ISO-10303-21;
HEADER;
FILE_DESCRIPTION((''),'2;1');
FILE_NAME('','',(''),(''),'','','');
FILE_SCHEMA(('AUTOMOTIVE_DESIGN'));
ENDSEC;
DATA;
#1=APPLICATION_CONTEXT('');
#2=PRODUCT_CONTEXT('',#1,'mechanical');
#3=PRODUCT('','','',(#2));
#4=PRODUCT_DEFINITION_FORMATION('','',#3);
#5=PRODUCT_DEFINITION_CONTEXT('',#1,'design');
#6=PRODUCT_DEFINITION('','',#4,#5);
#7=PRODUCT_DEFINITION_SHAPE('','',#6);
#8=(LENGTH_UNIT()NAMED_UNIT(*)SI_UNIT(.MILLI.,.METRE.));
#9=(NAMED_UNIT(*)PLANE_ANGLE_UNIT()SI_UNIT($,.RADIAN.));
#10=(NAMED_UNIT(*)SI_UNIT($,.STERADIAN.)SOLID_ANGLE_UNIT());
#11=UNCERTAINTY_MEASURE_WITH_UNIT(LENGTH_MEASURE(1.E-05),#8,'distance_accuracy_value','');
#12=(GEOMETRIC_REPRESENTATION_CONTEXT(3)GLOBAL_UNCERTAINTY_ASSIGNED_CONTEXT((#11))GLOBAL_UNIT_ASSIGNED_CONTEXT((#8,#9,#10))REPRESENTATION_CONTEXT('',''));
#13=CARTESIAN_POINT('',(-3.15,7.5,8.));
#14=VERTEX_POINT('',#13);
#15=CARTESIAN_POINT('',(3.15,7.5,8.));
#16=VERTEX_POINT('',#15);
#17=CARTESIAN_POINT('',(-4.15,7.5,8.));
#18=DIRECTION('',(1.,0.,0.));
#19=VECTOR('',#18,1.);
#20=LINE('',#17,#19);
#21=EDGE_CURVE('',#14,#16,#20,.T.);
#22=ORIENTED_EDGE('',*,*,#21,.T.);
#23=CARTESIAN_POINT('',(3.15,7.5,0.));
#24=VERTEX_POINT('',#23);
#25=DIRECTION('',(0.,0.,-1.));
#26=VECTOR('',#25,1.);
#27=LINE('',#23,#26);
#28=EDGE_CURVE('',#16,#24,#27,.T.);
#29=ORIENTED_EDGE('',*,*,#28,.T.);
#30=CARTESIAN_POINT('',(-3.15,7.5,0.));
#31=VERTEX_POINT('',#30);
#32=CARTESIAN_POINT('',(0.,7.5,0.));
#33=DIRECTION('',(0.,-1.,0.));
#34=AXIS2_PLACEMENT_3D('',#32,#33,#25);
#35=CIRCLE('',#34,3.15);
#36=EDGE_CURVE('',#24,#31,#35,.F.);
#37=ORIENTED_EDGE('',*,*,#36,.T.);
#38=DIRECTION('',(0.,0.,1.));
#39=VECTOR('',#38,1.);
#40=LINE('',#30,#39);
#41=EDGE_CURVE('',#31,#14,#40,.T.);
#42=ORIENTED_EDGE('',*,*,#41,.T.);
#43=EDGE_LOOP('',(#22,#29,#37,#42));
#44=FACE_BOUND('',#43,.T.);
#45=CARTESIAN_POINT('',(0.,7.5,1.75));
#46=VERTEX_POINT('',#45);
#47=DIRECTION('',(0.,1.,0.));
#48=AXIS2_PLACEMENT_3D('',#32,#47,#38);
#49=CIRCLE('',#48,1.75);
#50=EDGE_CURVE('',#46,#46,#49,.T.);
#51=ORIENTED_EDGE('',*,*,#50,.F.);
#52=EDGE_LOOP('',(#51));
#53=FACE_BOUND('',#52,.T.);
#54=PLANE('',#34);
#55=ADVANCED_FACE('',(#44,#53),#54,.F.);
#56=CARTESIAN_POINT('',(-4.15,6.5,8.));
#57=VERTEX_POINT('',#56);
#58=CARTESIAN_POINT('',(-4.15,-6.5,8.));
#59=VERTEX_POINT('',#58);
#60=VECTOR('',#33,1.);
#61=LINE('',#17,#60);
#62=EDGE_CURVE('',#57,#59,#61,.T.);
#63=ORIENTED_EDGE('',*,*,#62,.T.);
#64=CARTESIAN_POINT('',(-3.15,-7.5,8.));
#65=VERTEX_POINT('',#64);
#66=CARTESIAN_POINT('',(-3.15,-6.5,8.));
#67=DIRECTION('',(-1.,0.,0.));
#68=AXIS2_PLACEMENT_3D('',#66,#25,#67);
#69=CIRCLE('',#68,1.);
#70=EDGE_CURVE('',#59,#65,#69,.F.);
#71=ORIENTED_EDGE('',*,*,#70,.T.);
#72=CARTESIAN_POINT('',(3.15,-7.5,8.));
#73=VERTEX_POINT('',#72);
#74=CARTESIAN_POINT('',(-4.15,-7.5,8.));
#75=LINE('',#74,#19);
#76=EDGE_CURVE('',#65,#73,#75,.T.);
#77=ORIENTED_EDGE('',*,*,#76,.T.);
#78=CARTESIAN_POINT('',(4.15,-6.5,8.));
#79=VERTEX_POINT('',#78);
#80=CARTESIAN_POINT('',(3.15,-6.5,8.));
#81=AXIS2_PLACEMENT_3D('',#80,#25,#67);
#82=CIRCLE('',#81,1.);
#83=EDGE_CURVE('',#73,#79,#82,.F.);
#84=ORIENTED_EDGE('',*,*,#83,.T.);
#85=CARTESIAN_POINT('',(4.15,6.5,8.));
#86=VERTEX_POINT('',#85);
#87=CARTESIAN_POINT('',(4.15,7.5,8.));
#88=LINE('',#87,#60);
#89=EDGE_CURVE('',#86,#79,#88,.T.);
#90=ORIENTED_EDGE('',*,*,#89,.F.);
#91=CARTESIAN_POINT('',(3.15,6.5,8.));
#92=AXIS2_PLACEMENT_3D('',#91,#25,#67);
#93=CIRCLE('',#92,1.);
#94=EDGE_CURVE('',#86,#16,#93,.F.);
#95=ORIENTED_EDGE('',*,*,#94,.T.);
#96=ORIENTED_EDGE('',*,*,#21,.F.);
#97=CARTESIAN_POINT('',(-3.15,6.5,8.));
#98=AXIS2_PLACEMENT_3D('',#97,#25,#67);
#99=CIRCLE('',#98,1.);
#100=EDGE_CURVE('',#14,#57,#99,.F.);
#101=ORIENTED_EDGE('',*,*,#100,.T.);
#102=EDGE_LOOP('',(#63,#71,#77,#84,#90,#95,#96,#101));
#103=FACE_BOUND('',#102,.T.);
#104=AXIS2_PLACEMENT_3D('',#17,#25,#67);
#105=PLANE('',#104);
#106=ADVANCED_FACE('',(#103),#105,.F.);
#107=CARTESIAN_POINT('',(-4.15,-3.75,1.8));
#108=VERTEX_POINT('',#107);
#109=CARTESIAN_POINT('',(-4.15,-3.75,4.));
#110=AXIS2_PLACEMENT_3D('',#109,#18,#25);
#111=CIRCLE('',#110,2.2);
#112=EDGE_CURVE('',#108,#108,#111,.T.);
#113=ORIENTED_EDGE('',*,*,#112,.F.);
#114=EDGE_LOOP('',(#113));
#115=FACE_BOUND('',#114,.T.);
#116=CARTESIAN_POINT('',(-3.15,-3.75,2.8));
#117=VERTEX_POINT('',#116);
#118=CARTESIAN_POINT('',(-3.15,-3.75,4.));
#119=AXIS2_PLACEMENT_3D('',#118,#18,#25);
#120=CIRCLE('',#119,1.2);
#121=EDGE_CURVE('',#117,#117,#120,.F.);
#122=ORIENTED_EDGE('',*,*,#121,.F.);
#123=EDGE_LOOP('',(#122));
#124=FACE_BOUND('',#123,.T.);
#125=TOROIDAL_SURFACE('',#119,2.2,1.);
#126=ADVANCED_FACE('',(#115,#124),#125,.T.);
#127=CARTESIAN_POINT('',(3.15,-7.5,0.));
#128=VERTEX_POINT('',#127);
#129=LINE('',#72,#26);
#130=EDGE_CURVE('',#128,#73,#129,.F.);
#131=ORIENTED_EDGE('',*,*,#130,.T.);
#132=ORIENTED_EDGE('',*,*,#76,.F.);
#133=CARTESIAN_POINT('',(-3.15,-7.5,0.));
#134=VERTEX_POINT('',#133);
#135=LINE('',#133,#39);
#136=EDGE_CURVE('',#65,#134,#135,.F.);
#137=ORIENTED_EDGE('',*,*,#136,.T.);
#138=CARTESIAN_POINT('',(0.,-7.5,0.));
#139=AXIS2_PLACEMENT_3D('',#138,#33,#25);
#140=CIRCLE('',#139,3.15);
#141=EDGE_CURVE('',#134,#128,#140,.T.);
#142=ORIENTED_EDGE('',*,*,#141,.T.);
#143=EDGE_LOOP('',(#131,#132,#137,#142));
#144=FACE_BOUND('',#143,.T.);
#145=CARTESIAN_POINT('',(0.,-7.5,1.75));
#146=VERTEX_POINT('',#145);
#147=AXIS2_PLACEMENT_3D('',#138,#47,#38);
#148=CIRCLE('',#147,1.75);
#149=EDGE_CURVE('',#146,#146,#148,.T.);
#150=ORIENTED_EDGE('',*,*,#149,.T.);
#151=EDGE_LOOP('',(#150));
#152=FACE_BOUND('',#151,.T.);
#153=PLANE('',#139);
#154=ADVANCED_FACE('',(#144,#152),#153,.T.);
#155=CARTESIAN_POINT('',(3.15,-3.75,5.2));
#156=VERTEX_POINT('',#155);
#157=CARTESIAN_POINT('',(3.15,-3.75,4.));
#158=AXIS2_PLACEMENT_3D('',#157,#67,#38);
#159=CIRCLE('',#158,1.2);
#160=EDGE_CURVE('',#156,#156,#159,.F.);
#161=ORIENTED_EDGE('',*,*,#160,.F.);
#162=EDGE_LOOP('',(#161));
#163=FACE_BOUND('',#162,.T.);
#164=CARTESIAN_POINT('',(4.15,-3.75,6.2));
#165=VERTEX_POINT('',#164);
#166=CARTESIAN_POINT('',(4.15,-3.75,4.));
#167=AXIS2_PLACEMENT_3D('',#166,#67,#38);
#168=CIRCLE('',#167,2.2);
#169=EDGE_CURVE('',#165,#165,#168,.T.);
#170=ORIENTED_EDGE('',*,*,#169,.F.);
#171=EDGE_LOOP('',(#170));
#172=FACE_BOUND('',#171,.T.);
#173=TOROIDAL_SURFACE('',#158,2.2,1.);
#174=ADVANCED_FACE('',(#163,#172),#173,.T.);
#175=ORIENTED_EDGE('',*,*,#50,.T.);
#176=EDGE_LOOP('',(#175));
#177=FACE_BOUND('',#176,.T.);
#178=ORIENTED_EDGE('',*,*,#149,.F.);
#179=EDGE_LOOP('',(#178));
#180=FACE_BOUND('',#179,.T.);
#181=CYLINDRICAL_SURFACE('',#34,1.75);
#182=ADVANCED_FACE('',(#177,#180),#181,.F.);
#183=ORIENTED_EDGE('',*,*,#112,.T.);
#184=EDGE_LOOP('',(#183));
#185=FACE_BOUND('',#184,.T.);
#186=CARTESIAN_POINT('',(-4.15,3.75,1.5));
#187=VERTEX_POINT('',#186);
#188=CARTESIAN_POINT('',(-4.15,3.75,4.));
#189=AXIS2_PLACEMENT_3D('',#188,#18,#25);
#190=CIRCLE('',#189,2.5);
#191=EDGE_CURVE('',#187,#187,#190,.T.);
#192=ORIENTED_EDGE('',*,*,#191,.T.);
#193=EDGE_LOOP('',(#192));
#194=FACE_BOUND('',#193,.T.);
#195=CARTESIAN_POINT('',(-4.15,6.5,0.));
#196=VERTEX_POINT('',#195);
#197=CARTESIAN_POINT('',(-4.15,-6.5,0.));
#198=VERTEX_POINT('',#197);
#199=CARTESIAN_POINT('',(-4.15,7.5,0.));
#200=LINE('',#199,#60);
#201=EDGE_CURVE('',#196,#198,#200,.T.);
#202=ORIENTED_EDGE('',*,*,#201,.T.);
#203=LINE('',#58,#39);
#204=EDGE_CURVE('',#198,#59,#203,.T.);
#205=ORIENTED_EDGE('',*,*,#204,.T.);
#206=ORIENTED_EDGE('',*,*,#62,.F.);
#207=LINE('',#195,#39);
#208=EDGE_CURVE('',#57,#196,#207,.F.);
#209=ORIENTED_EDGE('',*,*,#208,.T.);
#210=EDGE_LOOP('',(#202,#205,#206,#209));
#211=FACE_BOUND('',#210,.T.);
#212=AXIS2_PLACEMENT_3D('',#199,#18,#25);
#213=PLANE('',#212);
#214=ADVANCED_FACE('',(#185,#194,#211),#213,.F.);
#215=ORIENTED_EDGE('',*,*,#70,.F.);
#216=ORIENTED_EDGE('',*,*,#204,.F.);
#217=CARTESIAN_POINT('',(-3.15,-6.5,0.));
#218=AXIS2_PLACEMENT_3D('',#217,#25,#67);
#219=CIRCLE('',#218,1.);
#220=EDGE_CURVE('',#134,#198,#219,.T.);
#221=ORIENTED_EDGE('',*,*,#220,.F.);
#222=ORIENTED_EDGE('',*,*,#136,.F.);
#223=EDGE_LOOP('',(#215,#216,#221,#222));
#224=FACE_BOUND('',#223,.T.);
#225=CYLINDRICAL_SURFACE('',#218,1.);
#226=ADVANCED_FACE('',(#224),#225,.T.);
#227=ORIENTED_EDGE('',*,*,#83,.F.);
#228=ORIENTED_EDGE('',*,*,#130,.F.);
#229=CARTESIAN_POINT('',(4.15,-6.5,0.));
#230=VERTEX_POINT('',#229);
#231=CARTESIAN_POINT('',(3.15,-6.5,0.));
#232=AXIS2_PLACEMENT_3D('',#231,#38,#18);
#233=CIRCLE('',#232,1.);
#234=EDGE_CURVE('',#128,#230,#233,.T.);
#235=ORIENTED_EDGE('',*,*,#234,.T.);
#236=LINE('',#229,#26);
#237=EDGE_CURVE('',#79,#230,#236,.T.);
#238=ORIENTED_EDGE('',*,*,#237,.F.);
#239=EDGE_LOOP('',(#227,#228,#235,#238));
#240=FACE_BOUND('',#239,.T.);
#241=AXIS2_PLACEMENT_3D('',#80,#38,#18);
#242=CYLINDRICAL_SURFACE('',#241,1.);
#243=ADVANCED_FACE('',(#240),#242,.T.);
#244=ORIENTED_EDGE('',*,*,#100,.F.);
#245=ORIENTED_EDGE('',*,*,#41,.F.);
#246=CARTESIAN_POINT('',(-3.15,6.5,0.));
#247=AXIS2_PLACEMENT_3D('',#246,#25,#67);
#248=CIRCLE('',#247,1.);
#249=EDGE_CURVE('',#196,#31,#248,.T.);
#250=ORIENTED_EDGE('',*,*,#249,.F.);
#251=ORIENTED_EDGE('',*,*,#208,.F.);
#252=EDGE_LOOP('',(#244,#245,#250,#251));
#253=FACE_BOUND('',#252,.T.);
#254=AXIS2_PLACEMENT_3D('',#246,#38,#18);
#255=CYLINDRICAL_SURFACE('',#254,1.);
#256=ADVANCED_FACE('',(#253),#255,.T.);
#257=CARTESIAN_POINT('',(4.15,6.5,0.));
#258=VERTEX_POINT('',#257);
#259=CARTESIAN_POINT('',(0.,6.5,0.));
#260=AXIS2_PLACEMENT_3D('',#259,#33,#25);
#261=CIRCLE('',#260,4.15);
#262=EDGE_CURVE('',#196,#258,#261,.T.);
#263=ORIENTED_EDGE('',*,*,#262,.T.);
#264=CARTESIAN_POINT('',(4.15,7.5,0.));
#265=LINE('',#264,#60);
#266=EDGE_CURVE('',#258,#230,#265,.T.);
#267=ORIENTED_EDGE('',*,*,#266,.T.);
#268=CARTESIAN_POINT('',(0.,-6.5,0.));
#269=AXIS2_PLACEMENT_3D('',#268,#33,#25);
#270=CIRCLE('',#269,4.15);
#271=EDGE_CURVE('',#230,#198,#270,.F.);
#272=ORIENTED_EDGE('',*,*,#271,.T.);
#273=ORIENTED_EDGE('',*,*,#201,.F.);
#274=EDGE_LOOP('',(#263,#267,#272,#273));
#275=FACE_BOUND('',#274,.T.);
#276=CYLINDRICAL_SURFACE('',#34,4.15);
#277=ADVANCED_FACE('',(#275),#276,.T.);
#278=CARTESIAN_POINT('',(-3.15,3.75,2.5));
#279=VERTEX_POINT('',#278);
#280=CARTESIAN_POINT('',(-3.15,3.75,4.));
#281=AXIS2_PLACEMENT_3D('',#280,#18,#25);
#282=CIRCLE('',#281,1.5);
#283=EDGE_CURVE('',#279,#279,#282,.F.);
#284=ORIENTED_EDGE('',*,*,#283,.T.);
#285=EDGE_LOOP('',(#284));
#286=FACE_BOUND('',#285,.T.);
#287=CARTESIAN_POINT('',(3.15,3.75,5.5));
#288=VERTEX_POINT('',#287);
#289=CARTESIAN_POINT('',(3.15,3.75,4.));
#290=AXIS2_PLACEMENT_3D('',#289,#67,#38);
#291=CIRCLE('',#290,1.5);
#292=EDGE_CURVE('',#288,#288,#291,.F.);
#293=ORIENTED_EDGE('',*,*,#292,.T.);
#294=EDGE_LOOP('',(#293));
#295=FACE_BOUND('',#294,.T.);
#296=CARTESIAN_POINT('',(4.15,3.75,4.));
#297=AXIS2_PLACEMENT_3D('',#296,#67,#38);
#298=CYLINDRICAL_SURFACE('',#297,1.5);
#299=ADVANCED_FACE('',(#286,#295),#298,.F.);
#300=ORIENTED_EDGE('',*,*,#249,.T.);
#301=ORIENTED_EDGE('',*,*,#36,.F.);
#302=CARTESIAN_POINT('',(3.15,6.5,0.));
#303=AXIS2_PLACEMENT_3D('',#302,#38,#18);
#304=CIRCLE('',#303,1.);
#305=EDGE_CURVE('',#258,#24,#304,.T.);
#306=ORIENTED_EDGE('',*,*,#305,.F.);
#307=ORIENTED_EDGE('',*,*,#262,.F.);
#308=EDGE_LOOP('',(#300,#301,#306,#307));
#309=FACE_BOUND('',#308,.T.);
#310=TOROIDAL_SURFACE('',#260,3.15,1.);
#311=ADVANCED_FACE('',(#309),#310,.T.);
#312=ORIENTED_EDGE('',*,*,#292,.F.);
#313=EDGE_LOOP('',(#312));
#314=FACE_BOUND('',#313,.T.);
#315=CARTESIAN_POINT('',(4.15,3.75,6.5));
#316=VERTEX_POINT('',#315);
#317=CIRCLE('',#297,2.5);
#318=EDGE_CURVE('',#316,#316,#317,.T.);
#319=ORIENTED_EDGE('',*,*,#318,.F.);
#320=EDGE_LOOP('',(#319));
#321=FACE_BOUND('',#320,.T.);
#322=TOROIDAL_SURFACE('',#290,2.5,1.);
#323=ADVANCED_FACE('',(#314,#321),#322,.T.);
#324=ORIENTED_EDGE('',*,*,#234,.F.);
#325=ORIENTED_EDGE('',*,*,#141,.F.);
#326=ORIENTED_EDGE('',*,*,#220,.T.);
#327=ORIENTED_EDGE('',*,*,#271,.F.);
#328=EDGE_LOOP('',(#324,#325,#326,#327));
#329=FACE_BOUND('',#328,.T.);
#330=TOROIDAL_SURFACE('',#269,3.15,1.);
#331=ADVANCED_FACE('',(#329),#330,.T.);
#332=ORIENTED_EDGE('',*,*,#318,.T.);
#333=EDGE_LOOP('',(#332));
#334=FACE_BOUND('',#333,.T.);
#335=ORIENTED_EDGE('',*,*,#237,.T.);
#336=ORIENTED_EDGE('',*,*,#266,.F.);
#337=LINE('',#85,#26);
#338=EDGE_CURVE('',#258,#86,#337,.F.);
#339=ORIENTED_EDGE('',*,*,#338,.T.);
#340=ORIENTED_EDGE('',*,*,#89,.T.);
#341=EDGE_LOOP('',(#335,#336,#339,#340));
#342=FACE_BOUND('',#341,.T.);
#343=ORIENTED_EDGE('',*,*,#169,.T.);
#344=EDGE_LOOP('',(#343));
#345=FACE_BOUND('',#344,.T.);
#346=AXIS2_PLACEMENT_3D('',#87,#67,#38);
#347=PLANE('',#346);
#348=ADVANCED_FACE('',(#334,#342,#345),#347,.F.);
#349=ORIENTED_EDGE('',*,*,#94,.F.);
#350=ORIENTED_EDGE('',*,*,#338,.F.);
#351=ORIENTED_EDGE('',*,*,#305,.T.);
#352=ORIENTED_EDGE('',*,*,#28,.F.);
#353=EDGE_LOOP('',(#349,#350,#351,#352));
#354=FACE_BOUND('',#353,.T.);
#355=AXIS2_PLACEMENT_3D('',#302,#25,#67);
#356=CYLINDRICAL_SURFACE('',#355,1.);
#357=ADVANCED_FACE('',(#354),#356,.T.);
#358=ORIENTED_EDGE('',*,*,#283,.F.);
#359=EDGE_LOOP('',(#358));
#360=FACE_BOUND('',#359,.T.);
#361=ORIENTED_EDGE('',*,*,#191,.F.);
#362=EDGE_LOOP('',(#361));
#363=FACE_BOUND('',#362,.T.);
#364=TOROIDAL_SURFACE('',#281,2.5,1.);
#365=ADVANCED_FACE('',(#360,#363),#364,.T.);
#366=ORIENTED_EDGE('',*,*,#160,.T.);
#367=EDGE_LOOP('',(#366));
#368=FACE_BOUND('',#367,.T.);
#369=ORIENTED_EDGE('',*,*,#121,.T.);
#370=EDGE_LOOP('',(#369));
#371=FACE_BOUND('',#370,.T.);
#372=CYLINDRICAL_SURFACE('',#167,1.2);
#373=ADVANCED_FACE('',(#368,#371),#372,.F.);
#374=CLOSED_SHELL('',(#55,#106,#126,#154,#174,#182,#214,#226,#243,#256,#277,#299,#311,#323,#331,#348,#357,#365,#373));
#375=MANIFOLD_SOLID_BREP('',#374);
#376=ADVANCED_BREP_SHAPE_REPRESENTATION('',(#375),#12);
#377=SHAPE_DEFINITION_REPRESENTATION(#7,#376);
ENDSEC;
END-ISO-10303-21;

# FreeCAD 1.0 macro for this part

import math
import FreeCAD as App
import Part
import Sketcher
from FreeCAD import Vector
Q = App.Units.Quantity


def edges_at(feature, points):
    """Names of the edges that pass closest to the given points."""
    edges = feature.Shape.Edges
    near = lambda p: min(range(len(edges)), key=lambda i: edges[i].distToShape(Part.Vertex(*p))[0])
    return sorted({f"Edge{near(p) + 1}" for p in points})

doc = App.newDocument("Part")
body = doc.addObject("PartDesign::Body", "Body")

# Sketch on XZ plane
sketch1 = body.newObject("Sketcher::SketchObject", "Sketch")
sketch1.AttachmentSupport = (doc.getObject("XZ_Plane"), [""])
sketch1.MapMode = "FlatFace"
sketch1.addGeometry([
    Part.LineSegment(Vector(-4.2, 0, 0), Vector(-4.2, 8, 0)),  # 0
    Part.LineSegment(Vector(-4.2, 8, 0), Vector(4.2, 8, 0)),  # 1
    Part.LineSegment(Vector(4.2, 8, 0), Vector(4.2, 0, 0)),  # 2
    Part.ArcOfCircle(Part.Circle(Vector(0, 0, 0), Vector(0, 0, 1), 4.2), math.radians(180), math.radians(360)),  # 3
    Part.Circle(Vector(0, 0, 0), Vector(0, 0, 1), 1.8),  # 4
], False)
sketch1.addConstraint([
    Sketcher.Constraint("Coincident", 0, 2, 1, 1),
    Sketcher.Constraint("Coincident", 1, 2, 2, 1),
    Sketcher.Constraint("Tangent", 2, 2, 3, 2),
    Sketcher.Constraint("Tangent", 3, 1, 0, 1),
    Sketcher.Constraint("Vertical", 0),
    Sketcher.Constraint("Horizontal", 1),
    Sketcher.Constraint("Vertical", 2),
    Sketcher.Constraint("Coincident", 3, 3, -1, 1),
    Sketcher.Constraint("Coincident", 4, 3, -1, 1),
    Sketcher.Constraint("Diameter", 4, Q("3.5 mm")),
    Sketcher.Constraint("DistanceY", 0, 1, 0, 2, Q("8 mm")),
    Sketcher.Constraint("Radius", 3, Q("4.15 mm")),
])
pad1 = body.newObject("PartDesign::Pad", "Pad")
pad1.Profile = sketch1
pad1.Length = 15
pad1.Midplane = True

# Sketch on YZ plane
sketch2 = body.newObject("Sketcher::SketchObject", "Sketch001")
sketch2.AttachmentSupport = (doc.getObject("YZ_Plane"), [""])
sketch2.MapMode = "FlatFace"
sketch2.AttachmentOffset = App.Placement(Vector(0, 0, -4.15), App.Rotation())
sketch2.addGeometry([
    Part.Circle(Vector(-3.8, 4, 0), Vector(0, 0, 1), 1.2),
    Part.Circle(Vector(3.8, 4, 0), Vector(0, 0, 1), 1.5),
], False)
sketch2.addConstraint([
    Sketcher.Constraint("Symmetric", 0, 3, 1, 3, -2),
    Sketcher.Constraint("Diameter", 1, Q("3 mm")),
    Sketcher.Constraint("Diameter", 0, Q("2.4 mm")),
    Sketcher.Constraint("DistanceY", -1, 1, 0, 3, Q("4 mm")),
    Sketcher.Constraint("DistanceX", 0, 3, 1, 3, Q("7.5 mm")),
])
pocket1 = body.newObject("PartDesign::Pocket", "Pocket")
pocket1.Profile = sketch2
pocket1.Type = "ThroughAll"
pocket1.Midplane = True
doc.recompute()

fillet = body.newObject("PartDesign::Fillet", "Fillet")
fillet.Base = (pocket1, edges_at(pocket1, [
    (4.15, -3.75, 2.8),
    (-4.15, -3.75, 2.8),
    (4.15, 3.75, 2.5),
    (-4.15, 3.75, 2.5),
]))
fillet.Radius = 1
doc.recompute()

fillet2 = body.newObject("PartDesign::Fillet", "Fillet001")
fillet2.Base = (fillet, edges_at(fillet, [
    (4.15, 7.5, 4),
    (0, 7.5, -4.15),
    (4.15, -7.5, 4),
    (-4.15, -7.5, 4),
    (0, -7.5, -4.15),
    (-4.15, 7.5, 4),
]))
fillet2.Radius = 1

doc.recompute()
